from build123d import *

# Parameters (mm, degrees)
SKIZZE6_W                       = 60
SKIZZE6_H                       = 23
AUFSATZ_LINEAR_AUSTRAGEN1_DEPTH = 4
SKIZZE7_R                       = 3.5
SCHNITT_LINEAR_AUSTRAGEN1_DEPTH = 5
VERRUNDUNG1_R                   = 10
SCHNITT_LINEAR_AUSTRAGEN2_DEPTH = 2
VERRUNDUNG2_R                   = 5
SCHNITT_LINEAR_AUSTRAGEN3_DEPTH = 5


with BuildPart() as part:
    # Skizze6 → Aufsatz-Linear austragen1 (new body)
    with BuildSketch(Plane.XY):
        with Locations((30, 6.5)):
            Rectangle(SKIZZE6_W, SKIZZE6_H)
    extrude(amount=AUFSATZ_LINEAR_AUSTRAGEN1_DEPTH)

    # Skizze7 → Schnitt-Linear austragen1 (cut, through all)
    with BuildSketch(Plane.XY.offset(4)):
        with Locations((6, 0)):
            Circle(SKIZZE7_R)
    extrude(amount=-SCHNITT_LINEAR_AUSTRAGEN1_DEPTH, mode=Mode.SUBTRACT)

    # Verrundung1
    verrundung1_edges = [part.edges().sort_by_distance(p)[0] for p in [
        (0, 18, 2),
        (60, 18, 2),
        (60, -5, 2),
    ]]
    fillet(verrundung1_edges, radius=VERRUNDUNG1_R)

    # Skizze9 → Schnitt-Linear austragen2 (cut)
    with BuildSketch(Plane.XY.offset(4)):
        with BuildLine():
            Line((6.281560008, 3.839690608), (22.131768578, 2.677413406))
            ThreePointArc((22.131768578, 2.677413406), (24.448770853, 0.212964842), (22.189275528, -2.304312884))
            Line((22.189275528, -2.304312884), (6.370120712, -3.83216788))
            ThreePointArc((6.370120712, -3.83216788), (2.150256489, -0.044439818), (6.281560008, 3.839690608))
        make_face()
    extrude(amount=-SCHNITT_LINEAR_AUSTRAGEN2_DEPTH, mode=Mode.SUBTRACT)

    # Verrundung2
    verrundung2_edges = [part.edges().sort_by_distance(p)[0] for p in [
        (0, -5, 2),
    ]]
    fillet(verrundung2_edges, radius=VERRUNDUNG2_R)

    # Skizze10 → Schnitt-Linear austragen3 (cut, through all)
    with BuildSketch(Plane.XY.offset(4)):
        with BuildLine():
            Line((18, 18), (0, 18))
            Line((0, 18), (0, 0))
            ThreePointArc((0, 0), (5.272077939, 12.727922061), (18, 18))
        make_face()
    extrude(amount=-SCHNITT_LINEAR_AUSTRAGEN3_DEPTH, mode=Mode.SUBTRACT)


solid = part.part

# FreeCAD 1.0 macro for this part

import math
import FreeCAD as App
import Part
import Sketcher
Q = App.Units.Quantity


def edges_at(feature, points):
    """Names of the edges that pass closest to the given points."""
    edges = feature.Shape.Edges
    near = lambda p: min(range(len(edges)), key=lambda i: edges[i].distToShape(Part.Vertex(*p))[0])
    return sorted({f"Edge{near(p) + 1}" for p in points})


def add_polygon(sketch, points):
    """Adds a closed chain of lines whose ends are joined by coincident constraints."""
    first, n = sketch.GeometryCount, len(points)
    for a, b in zip(points, points[1:] + points[:1]):
        sketch.addGeometry(Part.LineSegment(App.Vector(*a, 0), App.Vector(*b, 0)), False)
    for i in range(n):
        sketch.addConstraint(Sketcher.Constraint("Coincident", first + i, 2, first + (i + 1) % n, 1))

doc = App.newDocument("Part")
body = doc.addObject("PartDesign::Body", "Body")

# Sketch on XY plane
sketch1 = doc.addObject("Sketcher::SketchObject", "Sketch")
body.addObject(sketch1)
sketch1.AttachmentSupport = (doc.XY_Plane, [""])
sketch1.MapMode = "FlatFace"
add_polygon(sketch1, [(0, 18), (0, -5), (60, -5), (60, 18)])  # lines 0-3
sketch1.addConstraint([
    Sketcher.Constraint("Vertical", 0),
    Sketcher.Constraint("Horizontal", 1),
    Sketcher.Constraint("Vertical", 2),
    Sketcher.Constraint("Horizontal", 3),
    Sketcher.Constraint("PointOnObject", 0, 2, -2),
    Sketcher.Constraint("DistanceX", 1, 1, 1, 2, Q("60 mm")),
    Sketcher.Constraint("DistanceY", 0, 2, 0, 1, Q("23 mm")),
    Sketcher.Constraint("DistanceY", 0, 2, -1, 1, Q("5 mm")),
])
pad1 = doc.addObject("PartDesign::Pad", "Pad")
body.addObject(pad1)
pad1.Profile = sketch1
pad1.Length = 4

# Sketch on XY plane
sketch2 = doc.addObject("Sketcher::SketchObject", "Sketch001")
body.addObject(sketch2)
sketch2.AttachmentSupport = (doc.XY_Plane, [""])
sketch2.MapMode = "FlatFace"
sketch2.AttachmentOffset = App.Placement(App.Vector(0, 0, 4), App.Rotation())
sketch2.addGeometry(Part.Circle(App.Vector(6, 0, 0), App.Vector(0, 0, 1), 3.5), False)
sketch2.addConstraint([
    Sketcher.Constraint("PointOnObject", 0, 3, -1),
    Sketcher.Constraint("Diameter", 0, Q("7 mm")),
    Sketcher.Constraint("DistanceX", -1, 1, 0, 3, Q("6 mm")),
])
pocket1 = doc.addObject("PartDesign::Pocket", "Pocket")
body.addObject(pocket1)
pocket1.Profile = sketch2
pocket1.Type = "ThroughAll"
doc.recompute()

fillet = doc.addObject("PartDesign::Fillet", "Fillet")
body.addObject(fillet)
fillet.Base = (pocket1, edges_at(pocket1, [(0, 18, 2), (60, 18, 2), (60, -5, 2)]))
fillet.Radius = 10

# Sketch on XY plane
sketch3 = doc.addObject("Sketcher::SketchObject", "Sketch002")
body.addObject(sketch3)
sketch3.AttachmentSupport = (doc.XY_Plane, [""])
sketch3.MapMode = "FlatFace"
sketch3.AttachmentOffset = App.Placement(App.Vector(0, 0, 4), App.Rotation())
sketch3.addGeometry([
    Part.LineSegment(App.Vector(22.1, 2.7, 0), App.Vector(6.3, 3.8, 0)),
    Part.ArcOfCircle(Part.Circle(App.Vector(6, 0, 0), App.Vector(0, 0, 1), 3.9), math.radians(86), math.radians(276)),
    Part.LineSegment(App.Vector(6.4, -3.8, 0), App.Vector(22.2, -2.3, 0)),
    Part.ArcOfCircle(Part.Circle(App.Vector(21.9, 0.2, 0), App.Vector(0, 0, 1), 2.5), math.radians(-84), math.radians(86)),
], False)
sketch3.addConstraint([
    Sketcher.Constraint("Tangent", 0, 2, 1, 1),
    Sketcher.Constraint("Tangent", 1, 2, 2, 1),
    Sketcher.Constraint("Tangent", 2, 2, 3, 1),
    Sketcher.Constraint("Tangent", 3, 2, 0, 1),
    Sketcher.Constraint("PointOnObject", 1, 3, -1),
    Sketcher.Constraint("Radius", 3, Q("2.5 mm")),
    Sketcher.Constraint("Radius", 1, Q("3.85 mm")),
    Sketcher.Constraint("DistanceX", -1, 1, 1, 3, Q("6 mm")),
    Sketcher.Constraint("DistanceX", -1, 1, 0, 2, Q("6.28156 mm")),
    Sketcher.Constraint("DistanceX", -1, 1, 1, 2, Q("6.370121 mm")),
])
pocket2 = doc.addObject("PartDesign::Pocket", "Pocket001")
body.addObject(pocket2)
pocket2.Profile = sketch3
pocket2.Length = 2
doc.recompute()

fillet2 = doc.addObject("PartDesign::Fillet", "Fillet001")
body.addObject(fillet2)
fillet2.Base = (pocket2, edges_at(pocket2, [(0, -5, 2)]))
fillet2.Radius = 5

# Sketch on XY plane
sketch4 = doc.addObject("Sketcher::SketchObject", "Sketch003")
body.addObject(sketch4)
sketch4.AttachmentSupport = (doc.XY_Plane, [""])
sketch4.MapMode = "FlatFace"
sketch4.AttachmentOffset = App.Placement(App.Vector(0, 0, 4), App.Rotation())
sketch4.addGeometry([
    Part.LineSegment(App.Vector(18, 18, 0), App.Vector(0, 18, 0)),
    Part.LineSegment(App.Vector(0, 18, 0), App.Vector(0, 0, 0)),
    Part.ArcOfCircle(Part.Circle(App.Vector(18, 0, 0), App.Vector(0, 0, 1), 18), math.radians(90), math.radians(180)),
], False)
sketch4.addConstraint([
    Sketcher.Constraint("Coincident", 0, 2, 1, 1),
    Sketcher.Constraint("Tangent", 1, 2, 2, 2),
    Sketcher.Constraint("Tangent", 2, 1, 0, 1),
    Sketcher.Constraint("Horizontal", 0),
    Sketcher.Constraint("Vertical", 1),
    Sketcher.Constraint("Coincident", 1, 2, -1, 1),
    Sketcher.Constraint("Radius", 2, Q("18 mm")),
])
pocket3 = doc.addObject("PartDesign::Pocket", "Pocket002")
body.addObject(pocket3)
pocket3.Profile = sketch4
pocket3.Type = "ThroughAll"

doc.recompute()
